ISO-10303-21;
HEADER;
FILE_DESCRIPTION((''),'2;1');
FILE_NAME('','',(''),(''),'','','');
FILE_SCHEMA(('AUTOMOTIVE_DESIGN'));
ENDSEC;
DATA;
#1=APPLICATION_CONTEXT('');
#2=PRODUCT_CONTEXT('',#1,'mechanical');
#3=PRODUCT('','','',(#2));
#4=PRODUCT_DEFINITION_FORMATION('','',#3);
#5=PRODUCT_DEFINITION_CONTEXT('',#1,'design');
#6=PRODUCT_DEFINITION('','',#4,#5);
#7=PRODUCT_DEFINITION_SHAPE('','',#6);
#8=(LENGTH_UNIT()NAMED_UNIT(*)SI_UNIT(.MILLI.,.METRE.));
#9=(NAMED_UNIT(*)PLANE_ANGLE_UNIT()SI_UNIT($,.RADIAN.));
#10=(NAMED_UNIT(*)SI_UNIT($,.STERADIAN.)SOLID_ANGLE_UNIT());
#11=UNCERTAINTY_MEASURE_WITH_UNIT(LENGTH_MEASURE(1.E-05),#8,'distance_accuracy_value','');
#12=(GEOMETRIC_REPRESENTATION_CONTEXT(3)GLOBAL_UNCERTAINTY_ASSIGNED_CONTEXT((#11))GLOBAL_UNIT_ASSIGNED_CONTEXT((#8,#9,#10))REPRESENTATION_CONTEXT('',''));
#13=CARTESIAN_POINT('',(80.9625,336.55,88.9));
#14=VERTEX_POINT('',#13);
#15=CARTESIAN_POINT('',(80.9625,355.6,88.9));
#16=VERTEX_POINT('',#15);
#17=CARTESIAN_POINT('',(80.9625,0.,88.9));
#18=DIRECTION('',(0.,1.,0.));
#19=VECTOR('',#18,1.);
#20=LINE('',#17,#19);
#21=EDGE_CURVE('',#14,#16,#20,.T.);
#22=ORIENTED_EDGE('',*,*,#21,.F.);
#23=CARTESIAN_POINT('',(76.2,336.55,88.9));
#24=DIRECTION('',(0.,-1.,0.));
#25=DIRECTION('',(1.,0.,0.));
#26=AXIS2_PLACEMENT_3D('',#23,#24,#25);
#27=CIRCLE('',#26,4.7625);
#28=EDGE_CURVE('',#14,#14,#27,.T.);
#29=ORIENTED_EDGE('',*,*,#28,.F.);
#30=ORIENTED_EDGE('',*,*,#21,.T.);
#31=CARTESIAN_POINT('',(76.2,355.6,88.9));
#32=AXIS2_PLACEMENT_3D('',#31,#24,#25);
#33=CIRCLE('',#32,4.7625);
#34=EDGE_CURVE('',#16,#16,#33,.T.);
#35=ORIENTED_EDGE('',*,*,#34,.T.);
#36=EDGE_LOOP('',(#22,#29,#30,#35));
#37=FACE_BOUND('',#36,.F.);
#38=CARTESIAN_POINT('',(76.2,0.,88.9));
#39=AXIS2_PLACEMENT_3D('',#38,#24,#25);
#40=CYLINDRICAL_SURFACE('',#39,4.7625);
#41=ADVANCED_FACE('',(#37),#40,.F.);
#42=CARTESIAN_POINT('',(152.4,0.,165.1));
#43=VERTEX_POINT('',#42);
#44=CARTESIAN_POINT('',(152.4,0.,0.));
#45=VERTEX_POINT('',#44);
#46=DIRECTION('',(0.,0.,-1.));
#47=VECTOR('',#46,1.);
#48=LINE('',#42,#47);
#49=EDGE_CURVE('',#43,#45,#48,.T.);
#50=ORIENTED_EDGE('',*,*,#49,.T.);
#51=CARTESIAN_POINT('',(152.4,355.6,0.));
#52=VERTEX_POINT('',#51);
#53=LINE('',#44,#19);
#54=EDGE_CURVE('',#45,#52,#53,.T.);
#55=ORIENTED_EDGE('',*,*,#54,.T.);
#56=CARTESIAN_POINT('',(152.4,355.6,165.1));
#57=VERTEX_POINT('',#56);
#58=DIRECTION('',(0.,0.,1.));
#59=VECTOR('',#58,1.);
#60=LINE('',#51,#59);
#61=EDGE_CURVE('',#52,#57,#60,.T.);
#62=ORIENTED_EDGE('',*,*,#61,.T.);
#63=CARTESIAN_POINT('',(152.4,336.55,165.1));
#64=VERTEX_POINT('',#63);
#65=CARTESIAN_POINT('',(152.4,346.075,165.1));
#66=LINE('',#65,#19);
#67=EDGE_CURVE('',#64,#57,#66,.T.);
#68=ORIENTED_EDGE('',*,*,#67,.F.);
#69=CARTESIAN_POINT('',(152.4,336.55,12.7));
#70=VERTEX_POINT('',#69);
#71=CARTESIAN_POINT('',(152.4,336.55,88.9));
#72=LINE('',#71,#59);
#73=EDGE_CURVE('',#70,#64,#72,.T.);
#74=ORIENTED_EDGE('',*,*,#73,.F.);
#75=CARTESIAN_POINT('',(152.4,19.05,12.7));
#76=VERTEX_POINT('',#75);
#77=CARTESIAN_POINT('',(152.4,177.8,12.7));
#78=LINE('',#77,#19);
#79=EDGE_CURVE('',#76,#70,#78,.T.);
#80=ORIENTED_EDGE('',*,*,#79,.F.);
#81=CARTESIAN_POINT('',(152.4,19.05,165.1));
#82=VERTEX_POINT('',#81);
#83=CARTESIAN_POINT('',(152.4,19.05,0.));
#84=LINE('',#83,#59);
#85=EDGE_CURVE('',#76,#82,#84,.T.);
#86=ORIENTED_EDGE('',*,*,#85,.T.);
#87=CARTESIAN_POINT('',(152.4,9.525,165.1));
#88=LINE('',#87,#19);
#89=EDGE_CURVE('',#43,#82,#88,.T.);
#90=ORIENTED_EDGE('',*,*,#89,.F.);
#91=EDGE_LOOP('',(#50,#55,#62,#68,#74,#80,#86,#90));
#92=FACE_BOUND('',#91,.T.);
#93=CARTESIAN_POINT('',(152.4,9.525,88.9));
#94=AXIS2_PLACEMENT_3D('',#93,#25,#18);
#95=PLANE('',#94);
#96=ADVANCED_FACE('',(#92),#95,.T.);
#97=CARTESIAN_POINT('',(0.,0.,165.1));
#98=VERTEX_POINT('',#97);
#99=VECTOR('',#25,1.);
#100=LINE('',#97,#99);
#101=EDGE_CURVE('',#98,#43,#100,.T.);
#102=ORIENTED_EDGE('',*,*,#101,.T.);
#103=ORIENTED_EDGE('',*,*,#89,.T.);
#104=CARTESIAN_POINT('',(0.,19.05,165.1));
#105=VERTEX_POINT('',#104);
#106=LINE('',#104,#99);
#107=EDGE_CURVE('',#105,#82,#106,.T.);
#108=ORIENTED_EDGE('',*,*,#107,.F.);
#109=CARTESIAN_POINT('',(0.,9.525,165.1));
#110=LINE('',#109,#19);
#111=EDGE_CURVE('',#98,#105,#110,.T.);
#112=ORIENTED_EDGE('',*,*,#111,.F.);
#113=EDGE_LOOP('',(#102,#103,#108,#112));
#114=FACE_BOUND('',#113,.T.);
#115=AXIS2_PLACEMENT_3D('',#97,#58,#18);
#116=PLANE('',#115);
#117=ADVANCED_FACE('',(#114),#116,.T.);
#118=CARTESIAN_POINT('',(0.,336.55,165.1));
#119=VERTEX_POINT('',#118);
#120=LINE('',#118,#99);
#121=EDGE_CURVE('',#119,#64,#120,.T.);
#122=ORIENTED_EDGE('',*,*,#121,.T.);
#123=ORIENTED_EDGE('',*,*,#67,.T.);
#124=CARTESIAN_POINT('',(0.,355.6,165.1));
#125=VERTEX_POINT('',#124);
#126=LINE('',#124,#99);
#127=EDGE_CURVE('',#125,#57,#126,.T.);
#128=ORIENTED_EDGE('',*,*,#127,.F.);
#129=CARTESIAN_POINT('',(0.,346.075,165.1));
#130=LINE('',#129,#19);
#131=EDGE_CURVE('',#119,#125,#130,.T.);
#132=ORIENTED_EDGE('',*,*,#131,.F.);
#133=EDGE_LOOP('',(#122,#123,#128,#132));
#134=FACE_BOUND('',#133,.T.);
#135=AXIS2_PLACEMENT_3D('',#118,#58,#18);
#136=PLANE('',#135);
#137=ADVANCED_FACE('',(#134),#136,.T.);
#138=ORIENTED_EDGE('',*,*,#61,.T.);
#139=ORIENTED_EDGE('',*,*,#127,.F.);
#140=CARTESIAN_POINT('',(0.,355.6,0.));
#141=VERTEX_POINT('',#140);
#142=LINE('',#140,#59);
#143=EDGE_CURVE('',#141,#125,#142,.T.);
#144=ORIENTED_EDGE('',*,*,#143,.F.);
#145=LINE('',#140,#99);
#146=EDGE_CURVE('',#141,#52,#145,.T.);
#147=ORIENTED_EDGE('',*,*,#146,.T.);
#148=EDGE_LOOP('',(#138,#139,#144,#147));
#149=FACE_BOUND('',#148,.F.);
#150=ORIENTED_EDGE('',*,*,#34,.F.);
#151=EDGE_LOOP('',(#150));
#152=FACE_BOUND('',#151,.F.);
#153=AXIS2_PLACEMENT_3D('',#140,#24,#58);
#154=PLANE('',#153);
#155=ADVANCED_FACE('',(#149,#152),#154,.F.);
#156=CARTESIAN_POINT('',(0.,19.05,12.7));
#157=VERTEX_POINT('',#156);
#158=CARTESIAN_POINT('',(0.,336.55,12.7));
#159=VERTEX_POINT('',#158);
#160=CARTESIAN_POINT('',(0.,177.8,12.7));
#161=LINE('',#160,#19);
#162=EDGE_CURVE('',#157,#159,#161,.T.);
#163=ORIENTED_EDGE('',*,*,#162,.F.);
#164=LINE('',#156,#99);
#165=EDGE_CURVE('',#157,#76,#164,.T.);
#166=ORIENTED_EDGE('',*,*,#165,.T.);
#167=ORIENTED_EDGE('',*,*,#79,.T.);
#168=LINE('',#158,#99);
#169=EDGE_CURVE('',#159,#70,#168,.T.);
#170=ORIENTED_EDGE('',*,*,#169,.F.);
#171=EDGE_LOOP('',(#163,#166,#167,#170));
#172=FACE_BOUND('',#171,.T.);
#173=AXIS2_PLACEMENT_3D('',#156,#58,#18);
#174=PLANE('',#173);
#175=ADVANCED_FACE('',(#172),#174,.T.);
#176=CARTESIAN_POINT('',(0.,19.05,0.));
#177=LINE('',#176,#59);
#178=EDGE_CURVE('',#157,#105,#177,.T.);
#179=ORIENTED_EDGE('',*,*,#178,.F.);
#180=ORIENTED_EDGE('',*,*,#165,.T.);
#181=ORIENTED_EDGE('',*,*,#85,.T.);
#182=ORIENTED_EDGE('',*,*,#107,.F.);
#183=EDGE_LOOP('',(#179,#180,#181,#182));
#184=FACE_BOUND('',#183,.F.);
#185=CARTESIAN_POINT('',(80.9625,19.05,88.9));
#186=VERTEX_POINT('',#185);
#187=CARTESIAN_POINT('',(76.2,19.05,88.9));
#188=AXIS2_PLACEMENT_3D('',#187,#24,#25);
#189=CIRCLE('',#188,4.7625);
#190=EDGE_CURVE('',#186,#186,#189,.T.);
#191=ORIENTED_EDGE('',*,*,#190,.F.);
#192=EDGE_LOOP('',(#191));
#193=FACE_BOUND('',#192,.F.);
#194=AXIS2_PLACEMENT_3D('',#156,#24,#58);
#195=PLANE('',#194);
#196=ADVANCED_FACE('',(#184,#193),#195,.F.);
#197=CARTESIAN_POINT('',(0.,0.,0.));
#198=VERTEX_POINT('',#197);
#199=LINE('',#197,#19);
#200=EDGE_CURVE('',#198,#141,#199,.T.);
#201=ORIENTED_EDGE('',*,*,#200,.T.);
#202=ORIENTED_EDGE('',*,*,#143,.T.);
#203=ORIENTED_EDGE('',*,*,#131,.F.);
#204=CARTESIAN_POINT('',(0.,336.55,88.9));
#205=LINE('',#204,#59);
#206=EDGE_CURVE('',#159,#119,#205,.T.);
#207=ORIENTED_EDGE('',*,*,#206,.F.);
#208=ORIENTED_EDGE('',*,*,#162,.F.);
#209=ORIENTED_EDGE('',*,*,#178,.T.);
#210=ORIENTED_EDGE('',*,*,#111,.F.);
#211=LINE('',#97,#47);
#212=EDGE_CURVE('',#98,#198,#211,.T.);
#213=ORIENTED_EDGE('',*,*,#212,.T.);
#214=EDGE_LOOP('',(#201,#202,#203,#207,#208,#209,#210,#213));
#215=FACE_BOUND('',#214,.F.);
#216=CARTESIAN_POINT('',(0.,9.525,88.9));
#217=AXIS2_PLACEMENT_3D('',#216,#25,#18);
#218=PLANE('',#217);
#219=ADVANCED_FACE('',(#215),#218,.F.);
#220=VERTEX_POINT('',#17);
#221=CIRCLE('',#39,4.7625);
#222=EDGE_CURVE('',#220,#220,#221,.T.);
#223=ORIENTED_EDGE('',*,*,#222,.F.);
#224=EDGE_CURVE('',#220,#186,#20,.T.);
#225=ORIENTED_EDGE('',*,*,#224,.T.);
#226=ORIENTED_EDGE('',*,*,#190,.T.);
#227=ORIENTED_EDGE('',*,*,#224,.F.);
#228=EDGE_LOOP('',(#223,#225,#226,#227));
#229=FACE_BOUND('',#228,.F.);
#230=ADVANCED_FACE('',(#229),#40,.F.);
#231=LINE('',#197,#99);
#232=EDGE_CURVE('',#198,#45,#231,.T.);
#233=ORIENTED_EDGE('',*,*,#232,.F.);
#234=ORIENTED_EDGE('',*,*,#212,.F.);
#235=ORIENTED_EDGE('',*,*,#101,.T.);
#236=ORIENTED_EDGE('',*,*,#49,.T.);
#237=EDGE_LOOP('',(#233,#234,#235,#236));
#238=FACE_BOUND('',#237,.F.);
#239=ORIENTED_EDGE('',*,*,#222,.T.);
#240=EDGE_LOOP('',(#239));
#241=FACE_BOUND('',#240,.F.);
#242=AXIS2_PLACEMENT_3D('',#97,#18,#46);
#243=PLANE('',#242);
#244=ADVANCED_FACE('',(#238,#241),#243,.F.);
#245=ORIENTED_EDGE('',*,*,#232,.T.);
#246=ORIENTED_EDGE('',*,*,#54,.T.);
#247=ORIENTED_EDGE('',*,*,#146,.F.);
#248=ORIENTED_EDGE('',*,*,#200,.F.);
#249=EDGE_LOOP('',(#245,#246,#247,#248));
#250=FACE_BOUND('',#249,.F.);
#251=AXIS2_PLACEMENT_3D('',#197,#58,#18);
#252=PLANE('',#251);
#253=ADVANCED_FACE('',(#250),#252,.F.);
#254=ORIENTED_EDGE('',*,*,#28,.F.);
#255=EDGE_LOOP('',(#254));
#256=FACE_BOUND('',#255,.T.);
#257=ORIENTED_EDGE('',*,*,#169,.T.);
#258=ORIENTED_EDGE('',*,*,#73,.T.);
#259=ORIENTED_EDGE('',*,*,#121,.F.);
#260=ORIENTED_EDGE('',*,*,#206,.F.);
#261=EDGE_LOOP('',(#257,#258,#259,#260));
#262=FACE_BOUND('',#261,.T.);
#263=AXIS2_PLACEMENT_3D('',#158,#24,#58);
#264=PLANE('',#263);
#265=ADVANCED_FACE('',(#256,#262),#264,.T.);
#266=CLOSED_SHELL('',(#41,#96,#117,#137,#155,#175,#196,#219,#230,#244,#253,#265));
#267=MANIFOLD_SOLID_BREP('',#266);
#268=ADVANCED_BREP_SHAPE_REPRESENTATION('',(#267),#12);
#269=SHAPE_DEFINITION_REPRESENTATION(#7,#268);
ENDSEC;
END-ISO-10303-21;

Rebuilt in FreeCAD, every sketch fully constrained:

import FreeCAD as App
import Part
import Sketcher
from FreeCAD import Vector
Q = App.Units.Quantity

doc = App.newDocument("Part")
params = doc.addObject("Spreadsheet::Sheet", "Params")
for row, (alias, value) in enumerate([
    ("sketch1_width", "14 in"),
    ("sketch1_height", "6 in"),
    ("sketch1_width2", "12.5 in"),
    ("sketch1_height2", "6.5 in"),
    ("pad1_length", "6 in"),
    ("sketch2_diameter", "0.375 in"),
    ("pocket1_length", "16 in"),
], start=1):
    params.set(f"A{row}", alias)
    params.set(f"B{row}", "=" + value)
    params.setAlias(f"B{row}", alias)

body = doc.addObject("PartDesign::Body", "Body")

# Sketch on YZ plane
sketch1 = body.newObject("Sketcher::SketchObject", "Sketch")
sketch1.AttachmentSupport = (doc.getObject("YZ_Plane"), [""])
sketch1.MapMode = "FlatFace"
sketch1.addGeometry(Part.LineSegment(Vector(0, 165.1, 0), Vector(0, 0, 0)), False)
sketch1.addGeometry(Part.LineSegment(Vector(0, 0, 0), Vector(355.6, 0, 0)), False)
sketch1.addGeometry(Part.LineSegment(Vector(355.6, 0, 0), Vector(355.6, 165.1, 0)), False)
sketch1.addGeometry(Part.LineSegment(Vector(355.6, 165.1, 0), Vector(336.55, 165.1, 0)), False)
sketch1.addGeometry(Part.LineSegment(Vector(336.55, 165.1, 0), Vector(336.55, 12.7, 0)), False)
sketch1.addGeometry(Part.LineSegment(Vector(336.55, 12.7, 0), Vector(19.05, 12.7, 0)), False)
sketch1.addGeometry(Part.LineSegment(Vector(19.05, 12.7, 0), Vector(19.05, 165.1, 0)), False)
sketch1.addGeometry(Part.LineSegment(Vector(19.05, 165.1, 0), Vector(0, 165.1, 0)), False)
sketch1.addConstraint(Sketcher.Constraint("Coincident", 0, 2, 1, 1))
sketch1.addConstraint(Sketcher.Constraint("Coincident", 1, 2, 2, 1))
sketch1.addConstraint(Sketcher.Constraint("Coincident", 2, 2, 3, 1))
sketch1.addConstraint(Sketcher.Constraint("Coincident", 3, 2, 4, 1))
sketch1.addConstraint(Sketcher.Constraint("Coincident", 4, 2, 5, 1))
sketch1.addConstraint(Sketcher.Constraint("Coincident", 5, 2, 6, 1))
sketch1.addConstraint(Sketcher.Constraint("Coincident", 6, 2, 7, 1))
sketch1.addConstraint(Sketcher.Constraint("Coincident", 7, 2, 0, 1))
sketch1.addConstraint(Sketcher.Constraint("Vertical", 0))
sketch1.addConstraint(Sketcher.Constraint("Horizontal", 1))
sketch1.addConstraint(Sketcher.Constraint("Vertical", 2))
sketch1.addConstraint(Sketcher.Constraint("Horizontal", 3))
sketch1.addConstraint(Sketcher.Constraint("Vertical", 4))
sketch1.addConstraint(Sketcher.Constraint("Horizontal", 5))
sketch1.addConstraint(Sketcher.Constraint("Vertical", 6))
sketch1.addConstraint(Sketcher.Constraint("Horizontal", 7))
sketch1.addConstraint(Sketcher.Constraint("Coincident", 0, 2, -1, 1))
sketch1.addConstraint(Sketcher.Constraint("Horizontal", 3, 2, 6, 2))
sketch1.addConstraint(Sketcher.Constraint("Equal", 3, 7))
sketch1.addConstraint(Sketcher.Constraint("DistanceX", 1, 1, 1, 2, Q("14 in")))
sketch1.addConstraint(Sketcher.Constraint("DistanceY", 4, 2, 4, 1, Q("6 in")))
sketch1.addConstraint(Sketcher.Constraint("DistanceX", 5, 2, 5, 1, Q("12.5 in")))
sketch1.addConstraint(Sketcher.Constraint("DistanceY", 0, 2, 0, 1, Q("6.5 in")))
sketch1.setExpression("Constraints[19]", "Params.sketch1_width")
sketch1.setExpression("Constraints[20]", "Params.sketch1_height")
sketch1.setExpression("Constraints[21]", "Params.sketch1_width2")
sketch1.setExpression("Constraints[22]", "Params.sketch1_height2")
pad1 = body.newObject("PartDesign::Pad", "Pad")
pad1.Profile = sketch1
pad1.setExpression("Length", "Params.pad1_length")

# Sketch on XZ plane
sketch2 = body.newObject("Sketcher::SketchObject", "Sketch001")
sketch2.AttachmentSupport = (doc.getObject("XZ_Plane"), [""])
sketch2.MapMode = "FlatFace"
sketch2.addGeometry(Part.Circle(Vector(76.2, 88.9, 0), Vector(0, 0, 1), 4.7625), False)
sketch2.addConstraint(Sketcher.Constraint("Diameter", 0, Q("0.375 in")))
sketch2.addConstraint(Sketcher.Constraint("DistanceX", -1, 1, 0, 3, Q("3 in")))
sketch2.addConstraint(Sketcher.Constraint("DistanceY", -1, 1, 0, 3, Q("3.5 in")))
sketch2.setExpression("Constraints[0]", "Params.sketch2_diameter")
pocket1 = body.newObject("PartDesign::Pocket", "Pocket")
pocket1.Profile = sketch2
pocket1.setExpression("Length", "Params.pocket1_length")

doc.recompute()
